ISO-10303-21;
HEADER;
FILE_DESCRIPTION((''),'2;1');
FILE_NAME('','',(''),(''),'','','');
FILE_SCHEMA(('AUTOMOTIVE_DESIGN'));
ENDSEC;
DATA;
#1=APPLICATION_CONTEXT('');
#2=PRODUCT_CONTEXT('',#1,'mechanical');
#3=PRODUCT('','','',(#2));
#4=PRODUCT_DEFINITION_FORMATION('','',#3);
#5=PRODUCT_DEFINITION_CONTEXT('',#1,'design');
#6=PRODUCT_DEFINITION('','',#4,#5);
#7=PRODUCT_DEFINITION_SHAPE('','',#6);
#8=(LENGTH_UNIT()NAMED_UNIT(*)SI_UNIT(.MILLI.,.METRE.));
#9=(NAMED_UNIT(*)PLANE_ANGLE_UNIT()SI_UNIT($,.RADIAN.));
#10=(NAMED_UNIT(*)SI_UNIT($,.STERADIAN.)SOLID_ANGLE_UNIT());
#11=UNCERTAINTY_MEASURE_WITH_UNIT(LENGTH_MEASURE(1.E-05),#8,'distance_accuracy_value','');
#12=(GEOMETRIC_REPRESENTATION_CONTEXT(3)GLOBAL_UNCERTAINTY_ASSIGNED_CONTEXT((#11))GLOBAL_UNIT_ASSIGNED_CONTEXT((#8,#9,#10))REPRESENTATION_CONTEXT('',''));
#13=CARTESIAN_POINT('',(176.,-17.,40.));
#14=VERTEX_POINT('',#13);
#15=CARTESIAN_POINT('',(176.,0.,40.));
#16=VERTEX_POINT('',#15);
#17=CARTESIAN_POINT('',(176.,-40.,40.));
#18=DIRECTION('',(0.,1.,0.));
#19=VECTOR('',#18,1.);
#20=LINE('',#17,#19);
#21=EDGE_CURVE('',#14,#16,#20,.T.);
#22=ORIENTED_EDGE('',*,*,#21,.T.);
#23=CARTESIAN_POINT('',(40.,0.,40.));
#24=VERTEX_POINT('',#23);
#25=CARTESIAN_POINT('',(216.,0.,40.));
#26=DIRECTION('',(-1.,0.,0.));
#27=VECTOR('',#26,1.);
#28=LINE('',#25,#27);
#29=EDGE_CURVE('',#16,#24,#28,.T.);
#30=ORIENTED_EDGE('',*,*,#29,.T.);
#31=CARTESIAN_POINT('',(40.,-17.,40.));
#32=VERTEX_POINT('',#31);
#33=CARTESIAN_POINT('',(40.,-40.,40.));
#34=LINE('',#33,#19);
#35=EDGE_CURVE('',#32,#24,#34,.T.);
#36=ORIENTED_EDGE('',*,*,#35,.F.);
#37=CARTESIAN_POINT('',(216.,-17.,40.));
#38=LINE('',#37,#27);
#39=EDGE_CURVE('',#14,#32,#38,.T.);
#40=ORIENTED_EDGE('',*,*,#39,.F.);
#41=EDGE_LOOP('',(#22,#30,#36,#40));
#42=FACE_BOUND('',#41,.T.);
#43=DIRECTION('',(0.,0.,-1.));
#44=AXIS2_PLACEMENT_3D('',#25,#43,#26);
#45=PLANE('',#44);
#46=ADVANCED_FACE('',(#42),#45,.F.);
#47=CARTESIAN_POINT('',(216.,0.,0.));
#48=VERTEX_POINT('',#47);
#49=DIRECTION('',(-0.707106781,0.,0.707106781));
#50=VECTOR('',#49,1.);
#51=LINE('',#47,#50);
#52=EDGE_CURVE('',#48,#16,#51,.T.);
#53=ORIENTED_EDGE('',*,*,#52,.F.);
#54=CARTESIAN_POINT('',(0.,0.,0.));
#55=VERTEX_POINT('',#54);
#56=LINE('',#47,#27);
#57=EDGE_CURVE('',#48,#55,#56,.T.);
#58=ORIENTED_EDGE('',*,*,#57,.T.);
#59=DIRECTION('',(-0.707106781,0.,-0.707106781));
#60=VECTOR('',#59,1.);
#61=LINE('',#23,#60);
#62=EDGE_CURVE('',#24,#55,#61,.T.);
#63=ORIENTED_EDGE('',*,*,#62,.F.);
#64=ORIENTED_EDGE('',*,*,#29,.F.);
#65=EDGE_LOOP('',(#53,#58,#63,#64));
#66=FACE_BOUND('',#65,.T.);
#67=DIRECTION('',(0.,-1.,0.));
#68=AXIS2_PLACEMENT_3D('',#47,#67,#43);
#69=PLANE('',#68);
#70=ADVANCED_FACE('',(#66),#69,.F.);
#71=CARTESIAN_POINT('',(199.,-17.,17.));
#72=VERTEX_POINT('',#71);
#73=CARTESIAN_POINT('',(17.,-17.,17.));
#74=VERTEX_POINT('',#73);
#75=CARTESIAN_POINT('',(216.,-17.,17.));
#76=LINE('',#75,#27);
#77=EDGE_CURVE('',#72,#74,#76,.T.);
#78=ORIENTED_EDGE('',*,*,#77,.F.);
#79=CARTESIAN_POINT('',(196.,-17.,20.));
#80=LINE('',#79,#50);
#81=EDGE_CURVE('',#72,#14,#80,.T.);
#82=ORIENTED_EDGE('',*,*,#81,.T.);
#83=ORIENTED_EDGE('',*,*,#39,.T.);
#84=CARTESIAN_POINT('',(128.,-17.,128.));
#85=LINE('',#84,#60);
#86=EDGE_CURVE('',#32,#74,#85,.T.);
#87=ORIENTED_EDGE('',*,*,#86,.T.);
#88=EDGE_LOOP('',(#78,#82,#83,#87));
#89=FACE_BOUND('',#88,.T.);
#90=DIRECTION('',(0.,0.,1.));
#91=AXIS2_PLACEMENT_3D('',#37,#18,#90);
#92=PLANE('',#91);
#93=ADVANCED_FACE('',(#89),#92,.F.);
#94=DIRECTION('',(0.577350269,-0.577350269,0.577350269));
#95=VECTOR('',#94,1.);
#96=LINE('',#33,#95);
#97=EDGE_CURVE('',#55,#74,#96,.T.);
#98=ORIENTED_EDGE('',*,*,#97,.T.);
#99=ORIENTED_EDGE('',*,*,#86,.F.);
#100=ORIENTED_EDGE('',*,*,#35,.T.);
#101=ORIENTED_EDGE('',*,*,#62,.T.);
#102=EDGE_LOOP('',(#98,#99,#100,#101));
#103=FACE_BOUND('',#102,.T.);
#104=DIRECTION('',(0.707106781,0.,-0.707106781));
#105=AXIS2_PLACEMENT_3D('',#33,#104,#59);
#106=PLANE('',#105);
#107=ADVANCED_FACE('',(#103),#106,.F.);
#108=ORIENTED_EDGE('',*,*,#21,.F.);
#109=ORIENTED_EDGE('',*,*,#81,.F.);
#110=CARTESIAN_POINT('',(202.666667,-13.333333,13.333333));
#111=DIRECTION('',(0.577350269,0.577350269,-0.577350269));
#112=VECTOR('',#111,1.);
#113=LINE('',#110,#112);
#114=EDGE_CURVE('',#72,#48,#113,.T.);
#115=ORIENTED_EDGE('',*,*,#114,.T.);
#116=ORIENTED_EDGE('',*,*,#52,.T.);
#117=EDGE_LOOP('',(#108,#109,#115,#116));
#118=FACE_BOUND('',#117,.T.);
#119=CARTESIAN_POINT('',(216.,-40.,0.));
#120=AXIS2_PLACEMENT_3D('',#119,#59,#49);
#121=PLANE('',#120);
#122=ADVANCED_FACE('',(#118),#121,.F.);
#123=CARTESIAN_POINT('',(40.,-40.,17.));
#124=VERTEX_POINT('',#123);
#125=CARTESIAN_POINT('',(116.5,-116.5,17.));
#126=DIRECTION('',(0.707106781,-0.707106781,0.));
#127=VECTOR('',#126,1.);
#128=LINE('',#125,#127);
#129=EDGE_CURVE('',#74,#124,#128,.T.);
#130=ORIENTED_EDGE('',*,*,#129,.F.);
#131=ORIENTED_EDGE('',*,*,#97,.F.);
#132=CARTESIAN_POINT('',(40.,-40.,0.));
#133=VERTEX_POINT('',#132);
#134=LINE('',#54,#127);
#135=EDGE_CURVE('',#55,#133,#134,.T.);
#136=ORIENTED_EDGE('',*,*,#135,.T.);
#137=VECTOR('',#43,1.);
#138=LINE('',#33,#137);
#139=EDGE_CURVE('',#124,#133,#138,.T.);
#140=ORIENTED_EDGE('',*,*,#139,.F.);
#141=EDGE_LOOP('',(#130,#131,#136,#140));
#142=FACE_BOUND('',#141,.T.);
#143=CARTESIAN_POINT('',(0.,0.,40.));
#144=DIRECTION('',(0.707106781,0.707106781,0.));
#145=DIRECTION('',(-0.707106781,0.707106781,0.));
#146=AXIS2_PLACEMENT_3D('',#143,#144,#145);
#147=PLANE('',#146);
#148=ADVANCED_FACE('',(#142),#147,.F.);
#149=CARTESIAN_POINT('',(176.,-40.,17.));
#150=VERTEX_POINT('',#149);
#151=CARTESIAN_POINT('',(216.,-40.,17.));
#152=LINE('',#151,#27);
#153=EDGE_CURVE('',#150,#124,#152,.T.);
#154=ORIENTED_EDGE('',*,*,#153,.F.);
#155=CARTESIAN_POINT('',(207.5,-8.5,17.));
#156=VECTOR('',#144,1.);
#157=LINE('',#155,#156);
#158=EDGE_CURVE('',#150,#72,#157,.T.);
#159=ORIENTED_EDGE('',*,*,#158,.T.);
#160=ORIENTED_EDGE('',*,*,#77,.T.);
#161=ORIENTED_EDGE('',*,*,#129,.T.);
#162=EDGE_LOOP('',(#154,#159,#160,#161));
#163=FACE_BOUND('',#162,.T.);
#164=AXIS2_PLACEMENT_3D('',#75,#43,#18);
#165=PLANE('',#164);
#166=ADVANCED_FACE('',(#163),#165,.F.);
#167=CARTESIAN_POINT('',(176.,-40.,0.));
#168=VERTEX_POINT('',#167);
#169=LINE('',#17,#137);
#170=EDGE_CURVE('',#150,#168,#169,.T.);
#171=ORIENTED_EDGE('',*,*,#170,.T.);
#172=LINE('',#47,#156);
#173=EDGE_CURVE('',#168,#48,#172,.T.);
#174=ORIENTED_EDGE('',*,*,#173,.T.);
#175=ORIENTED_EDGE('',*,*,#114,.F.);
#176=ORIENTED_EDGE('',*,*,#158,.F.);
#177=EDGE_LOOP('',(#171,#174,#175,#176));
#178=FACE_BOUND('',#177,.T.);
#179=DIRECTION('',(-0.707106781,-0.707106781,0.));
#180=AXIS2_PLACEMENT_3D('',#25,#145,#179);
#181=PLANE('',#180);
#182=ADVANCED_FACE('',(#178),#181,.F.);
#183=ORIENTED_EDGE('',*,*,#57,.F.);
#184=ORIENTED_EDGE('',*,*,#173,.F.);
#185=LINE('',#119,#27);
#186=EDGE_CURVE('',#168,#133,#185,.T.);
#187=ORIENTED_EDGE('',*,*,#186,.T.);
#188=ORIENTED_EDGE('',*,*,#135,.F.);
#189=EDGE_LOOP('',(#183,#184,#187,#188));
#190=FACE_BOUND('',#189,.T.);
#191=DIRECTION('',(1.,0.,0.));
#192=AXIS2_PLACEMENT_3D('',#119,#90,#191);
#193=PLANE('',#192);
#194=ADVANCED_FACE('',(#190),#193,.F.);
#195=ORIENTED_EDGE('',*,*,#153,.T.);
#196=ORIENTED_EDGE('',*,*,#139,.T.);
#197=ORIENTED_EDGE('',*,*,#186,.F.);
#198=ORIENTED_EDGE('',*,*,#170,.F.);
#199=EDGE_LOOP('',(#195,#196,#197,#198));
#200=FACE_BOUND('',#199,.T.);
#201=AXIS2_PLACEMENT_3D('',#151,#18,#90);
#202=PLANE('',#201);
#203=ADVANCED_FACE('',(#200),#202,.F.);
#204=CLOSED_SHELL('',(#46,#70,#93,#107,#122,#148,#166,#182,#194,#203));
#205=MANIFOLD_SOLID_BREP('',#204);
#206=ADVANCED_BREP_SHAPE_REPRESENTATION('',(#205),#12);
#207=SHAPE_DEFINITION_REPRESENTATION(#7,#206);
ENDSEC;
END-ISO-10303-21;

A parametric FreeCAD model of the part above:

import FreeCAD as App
import Part
import Sketcher

V = App.Vector
Q = App.Units.Quantity

doc = App.newDocument("Part")
body = doc.addObject("PartDesign::Body", "Body")

sketch1 = doc.addObject("Sketcher::SketchObject", "Sketch")
body.addObject(sketch1)
sketch1.AttachmentSupport = (doc.YZ_Plane, [""])
sketch1.MapMode = "FlatFace"
sketch1.addGeometry(Part.LineSegment(V(0, 0, 0), V(0, 40, 0)), False)
sketch1.addGeometry(Part.LineSegment(V(0, 40, 0), V(-17, 40, 0)), False)
sketch1.addGeometry(Part.LineSegment(V(-17, 40, 0), V(-17, 17, 0)), False)
sketch1.addGeometry(Part.LineSegment(V(-17, 17, 0), V(-40, 17, 0)), False)
sketch1.addGeometry(Part.LineSegment(V(-40, 17, 0), V(-40, 0, 0)), False)
sketch1.addGeometry(Part.LineSegment(V(-40, 0, 0), V(0, 0, 0)), False)
sketch1.addConstraint(Sketcher.Constraint("Coincident", 0, 2, 1, 1))
sketch1.addConstraint(Sketcher.Constraint("Coincident", 1, 2, 2, 1))
sketch1.addConstraint(Sketcher.Constraint("Coincident", 2, 2, 3, 1))
sketch1.addConstraint(Sketcher.Constraint("Coincident", 3, 2, 4, 1))
sketch1.addConstraint(Sketcher.Constraint("Coincident", 4, 2, 5, 1))
sketch1.addConstraint(Sketcher.Constraint("Coincident", 5, 2, 0, 1))
sketch1.addConstraint(Sketcher.Constraint("Vertical", 0))
sketch1.addConstraint(Sketcher.Constraint("Horizontal", 1))
sketch1.addConstraint(Sketcher.Constraint("Vertical", 2))
sketch1.addConstraint(Sketcher.Constraint("Horizontal", 3))
sketch1.addConstraint(Sketcher.Constraint("Vertical", 4))
sketch1.addConstraint(Sketcher.Constraint("Horizontal", 5))
sketch1.addConstraint(Sketcher.Constraint("Coincident", 5, 2, -1, 1))
sketch1.addConstraint(Sketcher.Constraint("Equal", 5, 0))
sketch1.addConstraint(Sketcher.Constraint("Equal", 3, 2))
sketch1.addConstraint(Sketcher.Constraint("DistanceX", 1, 2, 1, 1, Q("17 mm")))
sketch1.addConstraint(Sketcher.Constraint("DistanceX", 3, 2, 3, 1, Q("23 mm")))
pad1 = doc.addObject("PartDesign::Pad", "Pad")
body.addObject(pad1)
pad1.Profile = sketch1
pad1.Length = 216

sketch2 = doc.addObject("Sketcher::SketchObject", "Sketch001")
body.addObject(sketch2)
sketch2.AttachmentSupport = (doc.XZ_Plane, [""])
sketch2.MapMode = "FlatFace"
sketch2.addGeometry(Part.LineSegment(V(216, 0, 0), V(176, 40, 0)), False)
sketch2.addGeometry(Part.LineSegment(V(176, 40, 0), V(216, 40, 0)), False)
sketch2.addGeometry(Part.LineSegment(V(216, 40, 0), V(216, 0, 0)), False)
sketch2.addGeometry(Part.LineSegment(V(0, 0, 0), V(0, 40, 0)), False)
sketch2.addGeometry(Part.LineSegment(V(0, 40, 0), V(40, 40, 0)), False)
sketch2.addGeometry(Part.LineSegment(V(40, 40, 0), V(0, 0, 0)), False)
sketch2.addConstraint(Sketcher.Constraint("Coincident", 0, 2, 1, 1))
sketch2.addConstraint(Sketcher.Constraint("Coincident", 1, 2, 2, 1))
sketch2.addConstraint(Sketcher.Constraint("Coincident", 2, 2, 0, 1))
sketch2.addConstraint(Sketcher.Constraint("Coincident", 3, 2, 4, 1))
sketch2.addConstraint(Sketcher.Constraint("Coincident", 4, 2, 5, 1))
sketch2.addConstraint(Sketcher.Constraint("Coincident", 5, 2, 3, 1))
sketch2.addConstraint(Sketcher.Constraint("Horizontal", 1))
sketch2.addConstraint(Sketcher.Constraint("Vertical", 2))
sketch2.addConstraint(Sketcher.Constraint("Vertical", 3))
sketch2.addConstraint(Sketcher.Constraint("Horizontal", 4))
sketch2.addConstraint(Sketcher.Constraint("Coincident", 5, 2, -1, 1))
sketch2.addConstraint(Sketcher.Constraint("PointOnObject", 2, 2, -1))
sketch2.addConstraint(Sketcher.Constraint("Perpendicular", 0, 5))
sketch2.addConstraint(Sketcher.Constraint("Horizontal", 1, 2, 3, 2))
sketch2.addConstraint(Sketcher.Constraint("Equal", 1, 4))
sketch2.addConstraint(Sketcher.Constraint("DistanceX", 1, 1, 1, 2, Q("40 mm")))
sketch2.addConstraint(Sketcher.Constraint("DistanceX", -1, 1, 0, 2, Q("176 mm")))
pocket1 = doc.addObject("PartDesign::Pocket", "Pocket")
body.addObject(pocket1)
pocket1.Profile = sketch2
pocket1.Type = "ThroughAll"
pocket1.Reversed = True

sketch3 = doc.addObject("Sketcher::SketchObject", "Sketch002")
body.addObject(sketch3)
sketch3.AttachmentSupport = (doc.XY_Plane, [""])
sketch3.MapMode = "FlatFace"
sketch3.addGeometry(Part.LineSegment(V(176, -40, 0), V(216, 0, 0)), False)
sketch3.addGeometry(Part.LineSegment(V(216, 0, 0), V(216, -40, 0)), False)
sketch3.addGeometry(Part.LineSegment(V(216, -40, 0), V(176, -40, 0)), False)
sketch3.addGeometry(Part.LineSegment(V(40, -40, 0), V(0, -40, 0)), False)
sketch3.addGeometry(Part.LineSegment(V(0, -40, 0), V(0, 0, 0)), False)
sketch3.addGeometry(Part.LineSegment(V(0, 0, 0), V(40, -40, 0)), False)
sketch3.addConstraint(Sketcher.Constraint("Coincident", 0, 2, 1, 1))
sketch3.addConstraint(Sketcher.Constraint("Coincident", 1, 2, 2, 1))
sketch3.addConstraint(Sketcher.Constraint("Coincident", 2, 2, 0, 1))
sketch3.addConstraint(Sketcher.Constraint("Coincident", 3, 2, 4, 1))
sketch3.addConstraint(Sketcher.Constraint("Coincident", 4, 2, 5, 1))
sketch3.addConstraint(Sketcher.Constraint("Coincident", 5, 2, 3, 1))
sketch3.addConstraint(Sketcher.Constraint("Vertical", 1))
sketch3.addConstraint(Sketcher.Constraint("Horizontal", 2))
sketch3.addConstraint(Sketcher.Constraint("Horizontal", 3))
sketch3.addConstraint(Sketcher.Constraint("Vertical", 4))
sketch3.addConstraint(Sketcher.Constraint("Coincident", 4, 2, -1, 1))
sketch3.addConstraint(Sketcher.Constraint("PointOnObject", 0, 2, -1))
sketch3.addConstraint(Sketcher.Constraint("Perpendicular", 0, 5))
sketch3.addConstraint(Sketcher.Constraint("Horizontal", 2, 2, 3, 2))
sketch3.addConstraint(Sketcher.Constraint("Equal", 2, 3))
sketch3.addConstraint(Sketcher.Constraint("DistanceX", 2, 2, 2, 1, Q("40 mm")))
sketch3.addConstraint(Sketcher.Constraint("DistanceX", -1, 1, 0, 2, Q("216 mm")))
pocket2 = doc.addObject("PartDesign::Pocket", "Pocket001")
body.addObject(pocket2)
pocket2.Profile = sketch3
pocket2.Type = "ThroughAll"
pocket2.Reversed = True

doc.recompute()
